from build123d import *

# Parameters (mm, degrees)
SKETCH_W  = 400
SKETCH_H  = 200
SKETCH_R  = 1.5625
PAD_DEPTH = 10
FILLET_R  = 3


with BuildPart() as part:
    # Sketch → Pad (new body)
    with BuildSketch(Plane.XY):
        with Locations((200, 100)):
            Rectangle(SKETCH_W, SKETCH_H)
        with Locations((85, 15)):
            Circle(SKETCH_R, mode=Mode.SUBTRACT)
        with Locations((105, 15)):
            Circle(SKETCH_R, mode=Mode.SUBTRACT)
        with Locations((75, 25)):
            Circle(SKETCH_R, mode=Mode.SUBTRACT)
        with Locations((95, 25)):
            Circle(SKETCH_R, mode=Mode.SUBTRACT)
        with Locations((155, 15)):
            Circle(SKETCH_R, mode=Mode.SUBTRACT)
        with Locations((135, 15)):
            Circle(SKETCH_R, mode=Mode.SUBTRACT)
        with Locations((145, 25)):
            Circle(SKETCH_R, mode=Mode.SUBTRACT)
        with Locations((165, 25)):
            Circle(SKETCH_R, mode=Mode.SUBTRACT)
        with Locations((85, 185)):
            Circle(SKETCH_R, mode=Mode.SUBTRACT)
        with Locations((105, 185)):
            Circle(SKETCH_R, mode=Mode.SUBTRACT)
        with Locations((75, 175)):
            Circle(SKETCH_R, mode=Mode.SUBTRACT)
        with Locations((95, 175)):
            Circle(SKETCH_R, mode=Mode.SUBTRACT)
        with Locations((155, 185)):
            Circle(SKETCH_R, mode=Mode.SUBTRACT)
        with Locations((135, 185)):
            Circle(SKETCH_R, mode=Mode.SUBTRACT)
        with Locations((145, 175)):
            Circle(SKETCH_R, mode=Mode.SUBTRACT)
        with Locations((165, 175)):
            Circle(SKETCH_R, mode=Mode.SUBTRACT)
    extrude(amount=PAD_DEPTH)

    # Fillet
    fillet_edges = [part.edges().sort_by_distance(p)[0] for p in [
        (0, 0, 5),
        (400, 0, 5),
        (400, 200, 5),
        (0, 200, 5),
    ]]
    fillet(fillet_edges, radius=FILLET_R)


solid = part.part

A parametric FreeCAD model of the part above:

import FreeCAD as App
import Part
import Sketcher
Q = App.Units.Quantity


def edges_at(feature, points):
    """Names of the edges that pass closest to the given points."""
    edges = feature.Shape.Edges
    near = lambda p: min(range(len(edges)), key=lambda i: edges[i].distToShape(Part.Vertex(*p))[0])
    return sorted({f"Edge{near(p) + 1}" for p in points})


def add_polygon(sketch, points):
    """Adds a closed chain of lines whose ends are joined by coincident constraints."""
    first, n = sketch.GeometryCount, len(points)
    for a, b in zip(points, points[1:] + points[:1]):
        sketch.addGeometry(Part.LineSegment(App.Vector(*a, 0), App.Vector(*b, 0)), False)
    for i in range(n):
        sketch.addConstraint(Sketcher.Constraint("Coincident", first + i, 2, first + (i + 1) % n, 1))

doc = App.newDocument("Part")
params = doc.addObject("Spreadsheet::Sheet", "Params")
for row, (alias, value) in enumerate([
    ("sketch1_width", "400 mm"),
    ("sketch1_height", "200 mm"),
    ("pad1_length", "10 mm"),
    ("fillet_radius", "3 mm"),
], start=1):
    params.set(f"A{row}", alias)
    params.set(f"B{row}", "=" + value)
    params.setAlias(f"B{row}", alias)

body = doc.addObject("PartDesign::Body", "Body")

sketch1 = body.newObject("Sketcher::SketchObject", "Sketch")
sketch1.AttachmentSupport = (doc.getObject("XY_Plane"), [""])
sketch1.MapMode = "FlatFace"
add_polygon(sketch1, [(0, 200), (0, 0), (400, 0), (400, 200)])
sketch1.addGeometry(Part.Circle(App.Vector(85, 15, 0), App.Vector(0, 0, 1), 1.6), False)
sketch1.addGeometry(Part.Circle(App.Vector(75, 25, 0), App.Vector(0, 0, 1), 1.6), False)
sketch1.addGeometry(Part.Circle(App.Vector(95, 25, 0), App.Vector(0, 0, 1), 1.6), False)
sketch1.addGeometry(Part.Circle(App.Vector(105, 15, 0), App.Vector(0, 0, 1), 1.6), False)
sketch1.addGeometry(Part.Circle(App.Vector(135, 15, 0), App.Vector(0, 0, 1), 1.6), False)
sketch1.addGeometry(Part.Circle(App.Vector(145, 25, 0), App.Vector(0, 0, 1), 1.6), False)
sketch1.addGeometry(Part.Circle(App.Vector(155, 15, 0), App.Vector(0, 0, 1), 1.6), False)
sketch1.addGeometry(Part.Circle(App.Vector(165, 25, 0), App.Vector(0, 0, 1), 1.6), False)
sketch1.addGeometry(Part.Circle(App.Vector(75, 175, 0), App.Vector(0, 0, 1), 1.6), False)
sketch1.addGeometry(Part.Circle(App.Vector(85, 185, 0), App.Vector(0, 0, 1), 1.6), False)
sketch1.addGeometry(Part.Circle(App.Vector(95, 175, 0), App.Vector(0, 0, 1), 1.6), False)
sketch1.addGeometry(Part.Circle(App.Vector(105, 185, 0), App.Vector(0, 0, 1), 1.6), False)
sketch1.addGeometry(Part.Circle(App.Vector(135, 185, 0), App.Vector(0, 0, 1), 1.6), False)
sketch1.addGeometry(Part.Circle(App.Vector(145, 175, 0), App.Vector(0, 0, 1), 1.6), False)
sketch1.addGeometry(Part.Circle(App.Vector(165, 175, 0), App.Vector(0, 0, 1), 1.6), False)
sketch1.addGeometry(Part.Circle(App.Vector(155, 185, 0), App.Vector(0, 0, 1), 1.6), False)
sketch1.addConstraint(Sketcher.Constraint("Vertical", 0))
sketch1.addConstraint(Sketcher.Constraint("Horizontal", 1))
sketch1.addConstraint(Sketcher.Constraint("Vertical", 2))
sketch1.addConstraint(Sketcher.Constraint("Horizontal", 3))
sketch1.addConstraint(Sketcher.Constraint("Coincident", 0, 2, -1, 1))
sketch1.addConstraint(Sketcher.Constraint("Equal", 4, 5))
sketch1.addConstraint(Sketcher.Constraint("Equal", 5, 6))
sketch1.addConstraint(Sketcher.Constraint("Equal", 6, 7))
sketch1.addConstraint(Sketcher.Constraint("Equal", 7, 8))
sketch1.addConstraint(Sketcher.Constraint("Equal", 8, 9))
sketch1.addConstraint(Sketcher.Constraint("Equal", 9, 10))
sketch1.addConstraint(Sketcher.Constraint("Equal", 10, 11))
sketch1.addConstraint(Sketcher.Constraint("Equal", 11, 12))
sketch1.addConstraint(Sketcher.Constraint("Equal", 12, 13))
sketch1.addConstraint(Sketcher.Constraint("Equal", 13, 14))
sketch1.addConstraint(Sketcher.Constraint("Equal", 14, 15))
sketch1.addConstraint(Sketcher.Constraint("Equal", 15, 16))
sketch1.addConstraint(Sketcher.Constraint("Equal", 16, 17))
sketch1.addConstraint(Sketcher.Constraint("Equal", 17, 18))
sketch1.addConstraint(Sketcher.Constraint("Equal", 18, 19))
sketch1.addConstraint(Sketcher.Constraint("Horizontal", 5, 3, 6, 3))
sketch1.addConstraint(Sketcher.Constraint("Horizontal", 4, 3, 7, 3))
sketch1.addConstraint(Sketcher.Constraint("Horizontal", 7, 3, 8, 3))
sketch1.addConstraint(Sketcher.Constraint("Horizontal", 6, 3, 9, 3))
sketch1.addConstraint(Sketcher.Constraint("Horizontal", 8, 3, 10, 3))
sketch1.addConstraint(Sketcher.Constraint("Horizontal", 9, 3, 11, 3))
sketch1.addConstraint(Sketcher.Constraint("Horizontal", 12, 3, 14, 3))
sketch1.addConstraint(Sketcher.Constraint("Horizontal", 13, 3, 15, 3))
sketch1.addConstraint(Sketcher.Constraint("Horizontal", 15, 3, 16, 3))
sketch1.addConstraint(Sketcher.Constraint("Horizontal", 14, 3, 17, 3))
sketch1.addConstraint(Sketcher.Constraint("Horizontal", 17, 3, 18, 3))
sketch1.addConstraint(Sketcher.Constraint("Horizontal", 16, 3, 19, 3))
sketch1.addConstraint(Sketcher.Constraint("Vertical", 5, 3, 12, 3))
sketch1.addConstraint(Sketcher.Constraint("Vertical", 4, 3, 13, 3))
sketch1.addConstraint(Sketcher.Constraint("Vertical", 6, 3, 14, 3))
sketch1.addConstraint(Sketcher.Constraint("Vertical", 7, 3, 15, 3))
sketch1.addConstraint(Sketcher.Constraint("Vertical", 8, 3, 16, 3))
sketch1.addConstraint(Sketcher.Constraint("Vertical", 9, 3, 17, 3))
sketch1.addConstraint(Sketcher.Constraint("Vertical", 11, 3, 18, 3))
sketch1.addConstraint(Sketcher.Constraint("Vertical", 10, 3, 19, 3))
sketch1.addConstraint(Sketcher.Constraint("DistanceX", 1, 1, 1, 2, Q("400 mm")))
sketch1.addConstraint(Sketcher.Constraint("DistanceY", 0, 2, 0, 1, Q("200 mm")))
sketch1.addConstraint(Sketcher.Constraint("Diameter", 4, Q("3.125 mm")))
sketch1.addConstraint(Sketcher.Constraint("DistanceX", -1, 1, 4, 3, Q("85 mm")))
sketch1.addConstraint(Sketcher.Constraint("DistanceY", -1, 1, 4, 3, Q("15 mm")))
sketch1.addConstraint(Sketcher.Constraint("DistanceX", -1, 1, 5, 3, Q("75 mm")))
sketch1.addConstraint(Sketcher.Constraint("DistanceY", -1, 1, 5, 3, Q("25 mm")))
sketch1.addConstraint(Sketcher.Constraint("DistanceX", -1, 1, 6, 3, Q("95 mm")))
sketch1.addConstraint(Sketcher.Constraint("DistanceX", -1, 1, 7, 3, Q("105 mm")))
sketch1.addConstraint(Sketcher.Constraint("DistanceX", -1, 1, 8, 3, Q("135 mm")))
sketch1.addConstraint(Sketcher.Constraint("DistanceX", -1, 1, 9, 3, Q("145 mm")))
sketch1.addConstraint(Sketcher.Constraint("DistanceX", -1, 1, 10, 3, Q("155 mm")))
sketch1.addConstraint(Sketcher.Constraint("DistanceX", -1, 1, 11, 3, Q("165 mm")))
sketch1.addConstraint(Sketcher.Constraint("DistanceY", -1, 1, 12, 3, Q("175 mm")))
sketch1.addConstraint(Sketcher.Constraint("DistanceY", -1, 1, 13, 3, Q("185 mm")))
sketch1.setExpression("Constraints[44]", "Params.sketch1_width")
sketch1.setExpression("Constraints[45]", "Params.sketch1_height")
pad1 = body.newObject("PartDesign::Pad", "Pad")
pad1.Profile = sketch1
pad1.setExpression("Length", "Params.pad1_length")
doc.recompute()

fillet = body.newObject("PartDesign::Fillet", "Fillet")
fillet.Base = (pad1, edges_at(pad1, [
    (0, 0, 5),
    (400, 0, 5),
    (400, 200, 5),
    (0, 200, 5),
]))
fillet.setExpression("Radius", "Params.fillet_radius")

doc.recompute()
